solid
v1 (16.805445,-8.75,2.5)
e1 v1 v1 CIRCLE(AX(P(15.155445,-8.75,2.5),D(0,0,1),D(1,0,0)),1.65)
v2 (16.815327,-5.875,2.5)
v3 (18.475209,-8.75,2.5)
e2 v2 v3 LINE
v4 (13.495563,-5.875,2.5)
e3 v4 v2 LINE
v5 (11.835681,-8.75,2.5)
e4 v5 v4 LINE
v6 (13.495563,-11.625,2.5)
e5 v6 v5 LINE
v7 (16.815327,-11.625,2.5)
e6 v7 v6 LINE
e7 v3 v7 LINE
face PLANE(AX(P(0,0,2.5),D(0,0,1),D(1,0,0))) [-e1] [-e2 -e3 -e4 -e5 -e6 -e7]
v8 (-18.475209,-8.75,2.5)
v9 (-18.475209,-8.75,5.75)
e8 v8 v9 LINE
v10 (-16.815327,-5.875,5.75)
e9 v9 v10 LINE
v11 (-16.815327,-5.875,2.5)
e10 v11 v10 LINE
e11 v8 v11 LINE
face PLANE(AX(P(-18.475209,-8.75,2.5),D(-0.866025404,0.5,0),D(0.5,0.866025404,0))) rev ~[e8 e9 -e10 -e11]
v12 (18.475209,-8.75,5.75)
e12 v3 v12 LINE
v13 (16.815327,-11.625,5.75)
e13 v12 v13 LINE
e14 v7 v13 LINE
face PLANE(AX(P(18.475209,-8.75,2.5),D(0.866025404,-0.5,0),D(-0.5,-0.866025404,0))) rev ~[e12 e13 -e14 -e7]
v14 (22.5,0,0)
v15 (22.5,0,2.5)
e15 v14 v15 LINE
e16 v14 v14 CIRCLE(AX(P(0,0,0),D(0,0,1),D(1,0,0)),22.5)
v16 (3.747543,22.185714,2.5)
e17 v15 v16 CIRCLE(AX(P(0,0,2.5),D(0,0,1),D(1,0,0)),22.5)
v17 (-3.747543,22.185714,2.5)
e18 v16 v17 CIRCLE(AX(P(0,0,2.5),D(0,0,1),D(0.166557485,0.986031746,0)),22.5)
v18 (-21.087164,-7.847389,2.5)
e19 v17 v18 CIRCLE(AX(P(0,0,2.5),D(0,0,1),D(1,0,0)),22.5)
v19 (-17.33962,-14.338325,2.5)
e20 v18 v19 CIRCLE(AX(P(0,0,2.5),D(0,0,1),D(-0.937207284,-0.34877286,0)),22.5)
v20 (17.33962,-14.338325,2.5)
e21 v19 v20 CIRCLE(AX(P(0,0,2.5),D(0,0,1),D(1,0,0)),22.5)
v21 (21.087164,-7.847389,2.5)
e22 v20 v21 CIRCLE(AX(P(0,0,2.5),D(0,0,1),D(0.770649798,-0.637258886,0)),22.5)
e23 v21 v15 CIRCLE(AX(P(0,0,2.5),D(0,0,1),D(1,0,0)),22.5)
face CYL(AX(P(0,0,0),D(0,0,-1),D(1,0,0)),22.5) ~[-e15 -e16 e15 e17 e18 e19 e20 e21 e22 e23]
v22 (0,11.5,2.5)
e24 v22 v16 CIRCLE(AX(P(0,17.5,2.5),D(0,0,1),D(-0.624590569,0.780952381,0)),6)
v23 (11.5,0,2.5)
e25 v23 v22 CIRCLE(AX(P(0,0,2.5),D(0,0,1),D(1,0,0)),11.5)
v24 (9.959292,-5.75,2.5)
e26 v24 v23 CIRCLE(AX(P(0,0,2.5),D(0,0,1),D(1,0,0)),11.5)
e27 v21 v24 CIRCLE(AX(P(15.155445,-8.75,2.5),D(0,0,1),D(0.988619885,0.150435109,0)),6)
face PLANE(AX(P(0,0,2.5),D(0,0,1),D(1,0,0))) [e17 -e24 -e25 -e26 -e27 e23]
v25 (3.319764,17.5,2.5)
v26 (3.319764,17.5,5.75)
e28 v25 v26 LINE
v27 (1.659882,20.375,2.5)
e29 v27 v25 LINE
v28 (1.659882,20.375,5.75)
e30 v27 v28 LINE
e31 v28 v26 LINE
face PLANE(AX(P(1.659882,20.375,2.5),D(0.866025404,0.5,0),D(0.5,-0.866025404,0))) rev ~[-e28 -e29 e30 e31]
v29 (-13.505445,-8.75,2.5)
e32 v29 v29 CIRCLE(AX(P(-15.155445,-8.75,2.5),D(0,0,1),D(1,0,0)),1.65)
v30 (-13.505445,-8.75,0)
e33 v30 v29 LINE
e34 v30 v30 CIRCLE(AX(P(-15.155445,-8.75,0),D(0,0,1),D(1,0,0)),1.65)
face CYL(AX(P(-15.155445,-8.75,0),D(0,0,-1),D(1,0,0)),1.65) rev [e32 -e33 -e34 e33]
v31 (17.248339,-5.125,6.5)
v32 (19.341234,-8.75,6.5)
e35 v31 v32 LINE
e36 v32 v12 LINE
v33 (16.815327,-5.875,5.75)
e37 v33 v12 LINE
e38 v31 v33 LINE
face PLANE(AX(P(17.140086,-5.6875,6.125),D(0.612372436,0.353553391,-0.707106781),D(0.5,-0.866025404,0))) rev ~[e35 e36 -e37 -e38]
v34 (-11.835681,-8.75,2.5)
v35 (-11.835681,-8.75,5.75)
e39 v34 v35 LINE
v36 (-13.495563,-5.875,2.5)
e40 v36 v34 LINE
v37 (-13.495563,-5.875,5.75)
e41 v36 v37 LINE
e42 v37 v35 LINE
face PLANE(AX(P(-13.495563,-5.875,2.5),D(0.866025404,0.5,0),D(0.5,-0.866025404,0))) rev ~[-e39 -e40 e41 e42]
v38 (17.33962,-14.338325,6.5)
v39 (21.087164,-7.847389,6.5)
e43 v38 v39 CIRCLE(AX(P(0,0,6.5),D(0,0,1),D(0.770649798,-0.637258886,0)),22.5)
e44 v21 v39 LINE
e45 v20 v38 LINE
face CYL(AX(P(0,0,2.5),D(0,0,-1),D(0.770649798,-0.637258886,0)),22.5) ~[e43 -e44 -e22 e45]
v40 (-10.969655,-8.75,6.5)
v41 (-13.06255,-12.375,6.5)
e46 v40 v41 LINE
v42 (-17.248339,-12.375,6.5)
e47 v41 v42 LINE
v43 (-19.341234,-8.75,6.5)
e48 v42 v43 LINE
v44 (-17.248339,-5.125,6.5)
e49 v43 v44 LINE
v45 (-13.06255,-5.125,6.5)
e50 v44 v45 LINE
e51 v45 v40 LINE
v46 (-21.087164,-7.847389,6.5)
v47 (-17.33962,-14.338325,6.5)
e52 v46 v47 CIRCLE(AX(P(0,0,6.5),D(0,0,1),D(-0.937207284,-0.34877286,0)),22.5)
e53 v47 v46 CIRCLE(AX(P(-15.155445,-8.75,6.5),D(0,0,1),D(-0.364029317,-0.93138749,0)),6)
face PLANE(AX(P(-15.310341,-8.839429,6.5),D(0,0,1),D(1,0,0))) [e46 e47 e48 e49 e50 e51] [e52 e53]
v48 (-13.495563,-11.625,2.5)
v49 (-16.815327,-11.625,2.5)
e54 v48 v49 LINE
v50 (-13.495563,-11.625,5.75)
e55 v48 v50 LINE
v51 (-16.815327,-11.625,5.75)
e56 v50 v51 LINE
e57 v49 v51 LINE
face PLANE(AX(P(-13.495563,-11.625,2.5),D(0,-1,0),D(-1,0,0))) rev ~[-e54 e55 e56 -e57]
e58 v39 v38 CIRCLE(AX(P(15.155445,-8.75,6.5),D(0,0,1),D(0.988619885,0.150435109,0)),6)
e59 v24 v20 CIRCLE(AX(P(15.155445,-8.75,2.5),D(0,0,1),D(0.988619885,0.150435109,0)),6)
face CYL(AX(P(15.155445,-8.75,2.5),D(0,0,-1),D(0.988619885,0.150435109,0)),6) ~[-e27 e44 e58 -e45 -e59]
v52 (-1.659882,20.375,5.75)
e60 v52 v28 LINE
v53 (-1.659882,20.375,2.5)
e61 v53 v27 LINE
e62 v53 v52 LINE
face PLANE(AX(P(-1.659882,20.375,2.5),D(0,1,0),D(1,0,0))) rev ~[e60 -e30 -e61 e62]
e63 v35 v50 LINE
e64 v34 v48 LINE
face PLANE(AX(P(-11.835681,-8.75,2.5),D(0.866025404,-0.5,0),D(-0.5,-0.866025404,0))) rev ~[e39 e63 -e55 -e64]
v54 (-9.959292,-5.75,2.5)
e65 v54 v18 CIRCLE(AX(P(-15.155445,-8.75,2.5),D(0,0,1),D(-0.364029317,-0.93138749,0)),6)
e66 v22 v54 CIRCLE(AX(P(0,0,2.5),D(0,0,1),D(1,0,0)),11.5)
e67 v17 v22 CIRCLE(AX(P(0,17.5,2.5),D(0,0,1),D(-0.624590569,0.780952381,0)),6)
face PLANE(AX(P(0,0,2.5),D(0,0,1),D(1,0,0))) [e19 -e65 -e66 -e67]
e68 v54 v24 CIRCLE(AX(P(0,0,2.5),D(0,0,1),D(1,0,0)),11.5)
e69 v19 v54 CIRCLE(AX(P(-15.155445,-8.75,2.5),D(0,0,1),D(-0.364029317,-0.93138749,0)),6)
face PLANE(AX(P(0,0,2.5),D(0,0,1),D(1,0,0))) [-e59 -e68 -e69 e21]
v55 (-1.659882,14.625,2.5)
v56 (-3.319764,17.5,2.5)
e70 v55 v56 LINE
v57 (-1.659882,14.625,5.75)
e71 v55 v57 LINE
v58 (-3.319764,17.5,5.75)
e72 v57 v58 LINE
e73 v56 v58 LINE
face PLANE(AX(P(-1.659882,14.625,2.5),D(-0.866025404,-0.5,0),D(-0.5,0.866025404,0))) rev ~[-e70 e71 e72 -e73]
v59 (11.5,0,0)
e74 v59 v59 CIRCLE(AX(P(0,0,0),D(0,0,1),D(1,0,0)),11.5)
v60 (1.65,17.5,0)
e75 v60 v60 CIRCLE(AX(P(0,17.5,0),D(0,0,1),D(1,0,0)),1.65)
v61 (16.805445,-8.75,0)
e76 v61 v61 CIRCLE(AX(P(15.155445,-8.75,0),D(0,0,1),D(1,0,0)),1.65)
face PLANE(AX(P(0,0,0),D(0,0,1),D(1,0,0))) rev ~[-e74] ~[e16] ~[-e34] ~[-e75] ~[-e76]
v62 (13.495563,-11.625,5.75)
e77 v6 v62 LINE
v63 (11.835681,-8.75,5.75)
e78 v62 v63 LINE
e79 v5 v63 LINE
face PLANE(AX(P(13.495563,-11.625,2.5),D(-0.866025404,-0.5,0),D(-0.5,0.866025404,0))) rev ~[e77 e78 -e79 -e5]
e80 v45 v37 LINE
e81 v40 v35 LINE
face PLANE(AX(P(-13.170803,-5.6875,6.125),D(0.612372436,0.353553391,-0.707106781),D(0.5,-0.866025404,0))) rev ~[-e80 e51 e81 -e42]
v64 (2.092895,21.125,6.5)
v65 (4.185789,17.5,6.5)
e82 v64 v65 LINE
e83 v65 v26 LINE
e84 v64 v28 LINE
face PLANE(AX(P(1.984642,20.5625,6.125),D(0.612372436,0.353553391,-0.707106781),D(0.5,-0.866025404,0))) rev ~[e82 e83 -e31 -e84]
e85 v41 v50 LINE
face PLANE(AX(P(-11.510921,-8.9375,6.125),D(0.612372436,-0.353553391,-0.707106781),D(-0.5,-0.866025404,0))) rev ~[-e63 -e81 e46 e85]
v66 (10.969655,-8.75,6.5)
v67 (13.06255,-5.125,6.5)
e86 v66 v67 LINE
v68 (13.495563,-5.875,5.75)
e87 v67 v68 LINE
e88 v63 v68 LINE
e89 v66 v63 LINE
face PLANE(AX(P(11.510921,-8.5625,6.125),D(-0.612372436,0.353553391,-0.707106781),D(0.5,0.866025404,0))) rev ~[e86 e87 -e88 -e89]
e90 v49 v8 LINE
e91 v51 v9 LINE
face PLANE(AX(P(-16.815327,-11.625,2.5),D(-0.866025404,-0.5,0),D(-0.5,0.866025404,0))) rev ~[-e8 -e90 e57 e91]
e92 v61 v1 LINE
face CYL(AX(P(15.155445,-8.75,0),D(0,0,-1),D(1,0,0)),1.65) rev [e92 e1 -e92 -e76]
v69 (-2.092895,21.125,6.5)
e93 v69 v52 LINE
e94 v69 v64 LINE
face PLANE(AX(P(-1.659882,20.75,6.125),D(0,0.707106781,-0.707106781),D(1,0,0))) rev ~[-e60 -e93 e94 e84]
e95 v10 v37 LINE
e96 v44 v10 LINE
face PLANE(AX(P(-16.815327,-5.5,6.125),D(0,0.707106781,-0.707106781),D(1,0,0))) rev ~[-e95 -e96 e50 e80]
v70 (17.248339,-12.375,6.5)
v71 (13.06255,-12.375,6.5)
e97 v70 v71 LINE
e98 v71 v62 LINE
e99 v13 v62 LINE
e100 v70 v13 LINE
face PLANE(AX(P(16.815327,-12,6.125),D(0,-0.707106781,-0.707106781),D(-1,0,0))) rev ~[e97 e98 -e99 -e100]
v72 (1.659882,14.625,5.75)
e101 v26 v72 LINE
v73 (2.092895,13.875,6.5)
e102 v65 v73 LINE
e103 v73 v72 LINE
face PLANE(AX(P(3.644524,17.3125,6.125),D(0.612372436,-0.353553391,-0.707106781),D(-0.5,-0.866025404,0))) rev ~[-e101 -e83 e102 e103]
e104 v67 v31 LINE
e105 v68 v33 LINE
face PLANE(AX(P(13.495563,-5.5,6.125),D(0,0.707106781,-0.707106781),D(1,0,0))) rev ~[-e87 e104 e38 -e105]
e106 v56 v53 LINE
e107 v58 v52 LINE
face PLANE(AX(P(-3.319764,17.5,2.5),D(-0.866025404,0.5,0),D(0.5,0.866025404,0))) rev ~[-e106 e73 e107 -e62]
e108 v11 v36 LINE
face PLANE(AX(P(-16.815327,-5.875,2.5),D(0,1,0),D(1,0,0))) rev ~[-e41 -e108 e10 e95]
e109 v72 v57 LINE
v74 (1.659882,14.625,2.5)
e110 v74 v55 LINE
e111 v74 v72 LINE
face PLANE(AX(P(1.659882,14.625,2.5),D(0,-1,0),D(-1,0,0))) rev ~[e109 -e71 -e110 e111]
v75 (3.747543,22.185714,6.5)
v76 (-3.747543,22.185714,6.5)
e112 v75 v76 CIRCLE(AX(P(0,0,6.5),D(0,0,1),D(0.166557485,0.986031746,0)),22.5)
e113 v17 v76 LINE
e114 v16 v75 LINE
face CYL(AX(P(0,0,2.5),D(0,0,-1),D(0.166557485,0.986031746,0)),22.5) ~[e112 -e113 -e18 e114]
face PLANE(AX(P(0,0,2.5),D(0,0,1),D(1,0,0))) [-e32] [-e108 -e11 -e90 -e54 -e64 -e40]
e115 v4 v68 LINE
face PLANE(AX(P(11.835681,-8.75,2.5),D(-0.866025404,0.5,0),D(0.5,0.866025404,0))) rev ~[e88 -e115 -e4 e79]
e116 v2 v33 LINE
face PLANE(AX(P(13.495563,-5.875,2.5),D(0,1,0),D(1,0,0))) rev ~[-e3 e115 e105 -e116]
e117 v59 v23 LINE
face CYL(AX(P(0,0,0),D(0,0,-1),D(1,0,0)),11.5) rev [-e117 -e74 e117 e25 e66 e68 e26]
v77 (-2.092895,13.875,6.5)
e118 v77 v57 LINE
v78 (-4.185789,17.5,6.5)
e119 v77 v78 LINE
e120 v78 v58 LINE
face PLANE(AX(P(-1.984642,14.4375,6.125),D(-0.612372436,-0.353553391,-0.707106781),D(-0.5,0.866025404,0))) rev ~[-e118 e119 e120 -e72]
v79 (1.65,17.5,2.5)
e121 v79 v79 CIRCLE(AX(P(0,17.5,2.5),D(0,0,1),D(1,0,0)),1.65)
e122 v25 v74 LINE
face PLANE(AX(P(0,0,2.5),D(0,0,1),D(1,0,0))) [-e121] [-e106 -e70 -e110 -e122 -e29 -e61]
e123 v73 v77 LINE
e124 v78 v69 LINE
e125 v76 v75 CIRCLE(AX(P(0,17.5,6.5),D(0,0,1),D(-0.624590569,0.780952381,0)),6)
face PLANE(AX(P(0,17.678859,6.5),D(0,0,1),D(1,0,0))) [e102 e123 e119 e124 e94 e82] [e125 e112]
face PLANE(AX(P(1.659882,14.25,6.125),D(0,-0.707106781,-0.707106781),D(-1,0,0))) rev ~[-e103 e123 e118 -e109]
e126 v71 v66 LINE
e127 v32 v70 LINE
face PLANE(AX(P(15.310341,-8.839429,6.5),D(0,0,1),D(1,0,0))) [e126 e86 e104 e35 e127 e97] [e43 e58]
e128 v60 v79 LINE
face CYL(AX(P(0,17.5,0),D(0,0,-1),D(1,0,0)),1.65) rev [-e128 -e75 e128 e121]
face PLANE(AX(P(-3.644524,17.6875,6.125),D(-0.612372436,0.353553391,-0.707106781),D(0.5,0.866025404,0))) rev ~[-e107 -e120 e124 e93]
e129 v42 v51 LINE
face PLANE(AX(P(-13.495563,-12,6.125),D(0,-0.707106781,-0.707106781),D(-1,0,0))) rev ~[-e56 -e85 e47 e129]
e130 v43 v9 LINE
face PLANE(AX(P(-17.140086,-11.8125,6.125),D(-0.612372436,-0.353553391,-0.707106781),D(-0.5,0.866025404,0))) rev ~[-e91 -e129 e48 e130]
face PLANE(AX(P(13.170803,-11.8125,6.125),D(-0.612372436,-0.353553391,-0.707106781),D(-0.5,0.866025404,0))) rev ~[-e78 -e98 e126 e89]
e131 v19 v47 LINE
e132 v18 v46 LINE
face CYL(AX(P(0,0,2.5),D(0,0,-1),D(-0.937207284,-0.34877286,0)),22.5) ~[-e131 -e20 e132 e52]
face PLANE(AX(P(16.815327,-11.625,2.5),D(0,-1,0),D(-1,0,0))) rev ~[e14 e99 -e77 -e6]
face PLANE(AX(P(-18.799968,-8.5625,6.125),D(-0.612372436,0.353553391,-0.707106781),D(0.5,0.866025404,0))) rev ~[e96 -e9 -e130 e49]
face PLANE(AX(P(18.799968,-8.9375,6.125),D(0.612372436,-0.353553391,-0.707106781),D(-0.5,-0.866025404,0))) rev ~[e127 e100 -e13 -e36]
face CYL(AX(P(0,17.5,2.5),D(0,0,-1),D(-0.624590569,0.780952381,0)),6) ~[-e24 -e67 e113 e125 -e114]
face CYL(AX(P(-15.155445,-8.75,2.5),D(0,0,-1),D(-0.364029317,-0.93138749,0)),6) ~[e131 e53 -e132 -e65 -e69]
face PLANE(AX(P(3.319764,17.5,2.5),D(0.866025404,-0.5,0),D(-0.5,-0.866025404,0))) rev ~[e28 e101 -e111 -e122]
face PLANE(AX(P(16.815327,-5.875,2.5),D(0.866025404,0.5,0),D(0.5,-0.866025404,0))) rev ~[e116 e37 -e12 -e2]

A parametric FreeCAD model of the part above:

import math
import FreeCAD as App
import Part
import Sketcher
from FreeCAD import Vector
Q = App.Units.Quantity


def edges_at(feature, points):
    """Names of the edges that pass closest to the given points."""
    edges = feature.Shape.Edges
    near = lambda p: min(range(len(edges)), key=lambda i: edges[i].distToShape(Part.Vertex(*p))[0])
    return sorted({f"Edge{near(p) + 1}" for p in points})

doc = App.newDocument("Part")
body = doc.addObject("PartDesign::Body", "Body")

# Sketch on XY plane
sketch1 = doc.addObject("Sketcher::SketchObject", "Sketch")
body.addObject(sketch1)
sketch1.AttachmentSupport = (doc.XY_Plane, [""])
sketch1.MapMode = "FlatFace"
sketch1.addGeometry([
    Part.Circle(Vector(0, 0, 0), Vector(0, 0, 1), 22.5),  # 0
    Part.Circle(Vector(-15.155445, -8.75, 0), Vector(0, 0, 1), 1.65),  # 1
    Part.Circle(Vector(15.155445, -8.75, 0), Vector(0, 0, 1), 1.65),  # 2
    Part.Circle(Vector(0, 0, 0), Vector(0, 0, 1), 11.5),  # 3
    Part.Circle(Vector(0, 17.5, 0), Vector(0, 0, 1), 1.65),  # 4
], False)
sketch1.addConstraint([
    Sketcher.Constraint("Coincident", 0, 3, -1, 1),
    Sketcher.Constraint("Coincident", 3, 3, -1, 1),
    Sketcher.Constraint("Equal", 1, 2),
    Sketcher.Constraint("Equal", 2, 4),
    Sketcher.Constraint("Symmetric", 1, 3, 2, 3, -2),
    Sketcher.Constraint("PointOnObject", 4, 3, -2),
    Sketcher.Constraint("Diameter", 0, 45.0),
    Sketcher.Constraint("Diameter", 3, 23.0),
    Sketcher.Constraint("Diameter", 1, 3.3),
    Sketcher.Constraint("DistanceY", -1, 1, 4, 3, 17.5),
    Sketcher.Constraint("DistanceY", 1, 3, -1, 1, 8.75),
    Sketcher.Constraint("DistanceX", 1, 3, 2, 3, 30.310889),
])
pad1 = doc.addObject("PartDesign::Pad", "Pad")
body.addObject(pad1)
pad1.Profile = sketch1
pad1.Length = 2.5

# Sketch on XY plane
sketch2 = doc.addObject("Sketcher::SketchObject", "Sketch001")
body.addObject(sketch2)
sketch2.AttachmentSupport = (doc.XY_Plane, [""])
sketch2.MapMode = "FlatFace"
sketch2.AttachmentOffset = App.Placement(Vector(0, 0, 2.5), App.Rotation())
sketch2.addGeometry([
    Part.ArcOfCircle(Part.Circle(Vector(0, 0, 0), Vector(0, 0, 1), 22.5), math.radians(80.412276), math.radians(99.587724)),  # 0
    Part.ArcOfCircle(Part.Circle(Vector(0, 17.5, 0), Vector(0, 0, 1), 6), math.radians(128.652143), math.radians(411.347857)),  # 1
    Part.LineSegment(Vector(-1.659882, 20.375, 0), Vector(1.659882, 20.375, 0)),  # 2
    Part.LineSegment(Vector(1.659882, 20.375, 0), Vector(3.319764, 17.5, 0)),  # 3
    Part.LineSegment(Vector(3.319764, 17.5, 0), Vector(1.659882, 14.625, 0)),  # 4
    Part.LineSegment(Vector(1.659882, 14.625, 0), Vector(-1.659882, 14.625, 0)),  # 5
    Part.LineSegment(Vector(-1.659882, 14.625, 0), Vector(-3.319764, 17.5, 0)),  # 6
    Part.LineSegment(Vector(-3.319764, 17.5, 0), Vector(-1.659882, 20.375, 0)),  # 7
    Part.ArcOfCircle(Part.Circle(Vector(-15.155445, -8.75, 0), Vector(0, 0, 1), 6), math.radians(-111.347857), math.radians(171.347857)),  # 8
    Part.ArcOfCircle(Part.Circle(Vector(0, 0, 0), Vector(0, 0, 1), 22.5), math.radians(-159.587724), math.radians(-140.412276)),  # 9
    Part.LineSegment(Vector(-16.815327, -11.625, 0), Vector(-18.475209, -8.75, 0)),  # 10
    Part.LineSegment(Vector(-18.475209, -8.75, 0), Vector(-16.815327, -5.875, 0)),  # 11
    Part.LineSegment(Vector(-16.815327, -5.875, 0), Vector(-13.495563, -5.875, 0)),  # 12
    Part.LineSegment(Vector(-13.495563, -5.875, 0), Vector(-11.835681, -8.75, 0)),  # 13
    Part.LineSegment(Vector(-11.835681, -8.75, 0), Vector(-13.495563, -11.625, 0)),  # 14
    Part.LineSegment(Vector(-13.495563, -11.625, 0), Vector(-16.815327, -11.625, 0)),  # 15
    Part.ArcOfCircle(Part.Circle(Vector(0, 0, 0), Vector(0, 0, 1), 22.5), math.radians(-39.587724), math.radians(-20.412276)),  # 16
    Part.ArcOfCircle(Part.Circle(Vector(15.155445, -8.75, 0), Vector(0, 0, 1), 6), math.radians(8.652143), math.radians(291.347857)),  # 17
    Part.LineSegment(Vector(18.475209, -8.75, 0), Vector(16.815327, -11.625, 0)),  # 18
    Part.LineSegment(Vector(16.815327, -11.625, 0), Vector(13.495563, -11.625, 0)),  # 19
    Part.LineSegment(Vector(13.495563, -11.625, 0), Vector(11.835681, -8.75, 0)),  # 20
    Part.LineSegment(Vector(11.835681, -8.75, 0), Vector(13.495563, -5.875, 0)),  # 21
    Part.LineSegment(Vector(13.495563, -5.875, 0), Vector(16.815327, -5.875, 0)),  # 22
    Part.LineSegment(Vector(16.815327, -5.875, 0), Vector(18.475209, -8.75, 0)),  # 23
], False)
sketch2.addConstraint([
    Sketcher.Constraint("Coincident", 0, 1, 1, 2),
    Sketcher.Constraint("Coincident", 1, 1, 0, 2),
    Sketcher.Constraint("Coincident", 2, 2, 3, 1),
    Sketcher.Constraint("Coincident", 3, 2, 4, 1),
    Sketcher.Constraint("Coincident", 4, 2, 5, 1),
    Sketcher.Constraint("Coincident", 5, 2, 6, 1),
    Sketcher.Constraint("Coincident", 6, 2, 7, 1),
    Sketcher.Constraint("Coincident", 7, 2, 2, 1),
    Sketcher.Constraint("Coincident", 8, 1, 9, 2),
    Sketcher.Constraint("Coincident", 9, 1, 8, 2),
    Sketcher.Constraint("Coincident", 10, 2, 11, 1),
    Sketcher.Constraint("Coincident", 11, 2, 12, 1),
    Sketcher.Constraint("Coincident", 12, 2, 13, 1),
    Sketcher.Constraint("Coincident", 13, 2, 14, 1),
    Sketcher.Constraint("Coincident", 14, 2, 15, 1),
    Sketcher.Constraint("Coincident", 15, 2, 10, 1),
    Sketcher.Constraint("Coincident", 16, 1, 17, 2),
    Sketcher.Constraint("Coincident", 17, 1, 16, 2),
    Sketcher.Constraint("Coincident", 18, 2, 19, 1),
    Sketcher.Constraint("Coincident", 19, 2, 20, 1),
    Sketcher.Constraint("Coincident", 20, 2, 21, 1),
    Sketcher.Constraint("Coincident", 21, 2, 22, 1),
    Sketcher.Constraint("Coincident", 22, 2, 23, 1),
    Sketcher.Constraint("Coincident", 23, 2, 18, 1),
    Sketcher.Constraint("Horizontal", 2),
    Sketcher.Constraint("Horizontal", 5),
    Sketcher.Constraint("Horizontal", 12),
    Sketcher.Constraint("Horizontal", 15),
    Sketcher.Constraint("Horizontal", 19),
    Sketcher.Constraint("Horizontal", 22),
    Sketcher.Constraint("Coincident", 0, 3, -1, 1),
    Sketcher.Constraint("Coincident", 9, 3, -1, 1),
    Sketcher.Constraint("Coincident", 16, 3, -1, 1),
    Sketcher.Constraint("Equal", 1, 8),
    Sketcher.Constraint("Equal", 0, 9),
    Sketcher.Constraint("Equal", 9, 16),
    Sketcher.Constraint("Equal", 8, 17),
    Sketcher.Constraint("Symmetric", 8, 3, 17, 3, -2),
    Sketcher.Constraint("Symmetric", 3, 2, 6, 2, -2),
    Sketcher.Constraint("Symmetric", 15, 2, 18, 2, -2),
    Sketcher.Constraint("Symmetric", 13, 2, 20, 2, -2),
    Sketcher.Constraint("Symmetric", 12, 2, 21, 2, -2),
    Sketcher.Constraint("Symmetric", 10, 2, 23, 2, -2),
    Sketcher.Constraint("PointOnObject", 1, 3, -2),
    Sketcher.Constraint("Parallel", 3, 6),
    Sketcher.Constraint("Parallel", 4, 7),
    Sketcher.Constraint("Parallel", 6, 10),
    Sketcher.Constraint("Parallel", 7, 11),
    Sketcher.Constraint("Parallel", 10, 13),
    Sketcher.Constraint("Parallel", 11, 14),
    Sketcher.Constraint("Parallel", 14, 18),
    Sketcher.Constraint("Parallel", 13, 20),
    Sketcher.Constraint("Parallel", 20, 23),
    Sketcher.Constraint("Horizontal", 1, 3, 3, 2),
    Sketcher.Constraint("Horizontal", 17, 3, 10, 2),
    Sketcher.Constraint("Horizontal", 10, 2, 13, 2),
    Sketcher.Constraint("Vertical", 2, 2, 4, 2),
    Sketcher.Constraint("Vertical", 12, 2, 14, 2),
    Sketcher.Constraint("Equal", 5, 12),
    Sketcher.Constraint("Equal", 7, 10),
    Sketcher.Constraint("Radius", 1, 6.0),
    Sketcher.Constraint("Radius", 0, 22.5),
    Sketcher.Constraint("Angle", 3, Q("-60 deg")),
    Sketcher.Constraint("DistanceY", -1, 1, 1, 3, 17.5),
    Sketcher.Constraint("DistanceY", 8, 3, -1, 1, 8.75),
    Sketcher.Constraint("DistanceY", 4, 2, 2, 2, 5.75),
    Sketcher.Constraint("DistanceX", 0, 1, 17, 3, 11.407901),
    Sketcher.Constraint("DistanceX", 9, 1, 12, 2, 7.591601),
    Sketcher.Constraint("DistanceX", 2, 1, 2, 2, 3.319764),
])
pad2 = doc.addObject("PartDesign::Pad", "Pad001")
body.addObject(pad2)
pad2.Profile = sketch2
pad2.Length = 4
doc.recompute()

chamfer = doc.addObject("PartDesign::Chamfer", "Chamfer")
body.addObject(chamfer)
chamfer.Base = (pad2, edges_at(pad2, [
    (2.49, 16.062, 6.5),
    (0, 14.625, 6.5),
    (-2.49, 16.062, 6.5),
    (-2.49, 18.938, 6.5),
    (0, 20.375, 6.5),
    (2.49, 18.938, 6.5),
    (-15.155, -5.875, 6.5),
    (-12.666, -7.312, 6.5),
    (-12.666, -10.188, 6.5),
    (-15.155, -11.625, 6.5),
    (-17.645, -10.188, 6.5),
    (-17.645, -7.312, 6.5),
    (12.666, -10.188, 6.5),
    (12.666, -7.312, 6.5),
    (15.155, -5.875, 6.5),
    (17.645, -7.312, 6.5),
    (17.645, -10.188, 6.5),
    (15.155, -11.625, 6.5),
]))
chamfer.Size = 0.75

doc.recompute()
